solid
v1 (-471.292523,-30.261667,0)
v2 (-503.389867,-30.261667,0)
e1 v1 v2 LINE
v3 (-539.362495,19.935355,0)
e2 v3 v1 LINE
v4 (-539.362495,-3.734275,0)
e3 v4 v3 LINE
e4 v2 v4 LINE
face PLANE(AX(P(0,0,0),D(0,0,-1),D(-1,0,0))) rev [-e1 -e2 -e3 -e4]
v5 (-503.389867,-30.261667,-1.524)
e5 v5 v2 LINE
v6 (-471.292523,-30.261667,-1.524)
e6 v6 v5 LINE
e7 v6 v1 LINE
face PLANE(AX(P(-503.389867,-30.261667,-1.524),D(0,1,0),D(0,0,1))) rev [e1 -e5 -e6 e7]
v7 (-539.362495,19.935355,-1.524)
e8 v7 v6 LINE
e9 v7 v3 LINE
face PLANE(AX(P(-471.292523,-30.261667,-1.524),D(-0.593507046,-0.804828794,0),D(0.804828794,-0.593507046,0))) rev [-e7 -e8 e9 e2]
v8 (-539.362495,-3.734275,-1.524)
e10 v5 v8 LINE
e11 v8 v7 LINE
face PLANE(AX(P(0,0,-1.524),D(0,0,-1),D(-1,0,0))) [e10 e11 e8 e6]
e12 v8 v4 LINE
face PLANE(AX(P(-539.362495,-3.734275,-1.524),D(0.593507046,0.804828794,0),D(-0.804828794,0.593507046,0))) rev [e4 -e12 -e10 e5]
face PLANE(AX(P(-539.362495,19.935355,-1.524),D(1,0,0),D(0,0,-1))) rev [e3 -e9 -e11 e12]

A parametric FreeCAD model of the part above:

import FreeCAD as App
import Part
import Sketcher

V = App.Vector
Q = App.Units.Quantity


def add_polygon(sketch, points):
    """Adds a closed chain of lines whose ends are joined by coincident constraints."""
    first, n = sketch.GeometryCount, len(points)
    for a, b in zip(points, points[1:] + points[:1]):
        sketch.addGeometry(Part.LineSegment(App.Vector(*a, 0), App.Vector(*b, 0)), False)
    for i in range(n):
        sketch.addConstraint(Sketcher.Constraint("Coincident", first + i, 2, first + (i + 1) % n, 1))

doc = App.newDocument("Part")
body = doc.addObject("PartDesign::Body", "Body")

sketch1 = body.newObject("Sketcher::SketchObject", "Sketch")
sketch1.AttachmentSupport = (doc.getObject("XY_Plane"), [""])
sketch1.MapMode = "FlatFace"
add_polygon(sketch1, [(-539.362495, 19.935355), (-471.292523, -30.261667), (-503.389867, -30.261667), (-539.362495, -3.734275)])
sketch1.addConstraint(Sketcher.Constraint("Horizontal", 1))
sketch1.addConstraint(Sketcher.Constraint("Vertical", 3))
sketch1.addConstraint(Sketcher.Constraint("Parallel", 0, 2))
sketch1.addConstraint(Sketcher.Constraint("Distance", 2, 44.696))
sketch1.addConstraint(Sketcher.Constraint("DistanceY", 3, 1, 3, 2, 23.66963))
sketch1.addConstraint(Sketcher.Constraint("Distance", 0, 84.57696))
sketch1.addConstraint(Sketcher.Constraint("DistanceX", 0, 2, -1, 1, 471.292523))
sketch1.addConstraint(Sketcher.Constraint("DistanceY", 0, 2, -1, 1, 30.261667))
pad1 = body.newObject("PartDesign::Pad", "Pad")
pad1.Profile = sketch1
pad1.Length = Q("0.06 in")
pad1.Reversed = True

doc.recompute()
